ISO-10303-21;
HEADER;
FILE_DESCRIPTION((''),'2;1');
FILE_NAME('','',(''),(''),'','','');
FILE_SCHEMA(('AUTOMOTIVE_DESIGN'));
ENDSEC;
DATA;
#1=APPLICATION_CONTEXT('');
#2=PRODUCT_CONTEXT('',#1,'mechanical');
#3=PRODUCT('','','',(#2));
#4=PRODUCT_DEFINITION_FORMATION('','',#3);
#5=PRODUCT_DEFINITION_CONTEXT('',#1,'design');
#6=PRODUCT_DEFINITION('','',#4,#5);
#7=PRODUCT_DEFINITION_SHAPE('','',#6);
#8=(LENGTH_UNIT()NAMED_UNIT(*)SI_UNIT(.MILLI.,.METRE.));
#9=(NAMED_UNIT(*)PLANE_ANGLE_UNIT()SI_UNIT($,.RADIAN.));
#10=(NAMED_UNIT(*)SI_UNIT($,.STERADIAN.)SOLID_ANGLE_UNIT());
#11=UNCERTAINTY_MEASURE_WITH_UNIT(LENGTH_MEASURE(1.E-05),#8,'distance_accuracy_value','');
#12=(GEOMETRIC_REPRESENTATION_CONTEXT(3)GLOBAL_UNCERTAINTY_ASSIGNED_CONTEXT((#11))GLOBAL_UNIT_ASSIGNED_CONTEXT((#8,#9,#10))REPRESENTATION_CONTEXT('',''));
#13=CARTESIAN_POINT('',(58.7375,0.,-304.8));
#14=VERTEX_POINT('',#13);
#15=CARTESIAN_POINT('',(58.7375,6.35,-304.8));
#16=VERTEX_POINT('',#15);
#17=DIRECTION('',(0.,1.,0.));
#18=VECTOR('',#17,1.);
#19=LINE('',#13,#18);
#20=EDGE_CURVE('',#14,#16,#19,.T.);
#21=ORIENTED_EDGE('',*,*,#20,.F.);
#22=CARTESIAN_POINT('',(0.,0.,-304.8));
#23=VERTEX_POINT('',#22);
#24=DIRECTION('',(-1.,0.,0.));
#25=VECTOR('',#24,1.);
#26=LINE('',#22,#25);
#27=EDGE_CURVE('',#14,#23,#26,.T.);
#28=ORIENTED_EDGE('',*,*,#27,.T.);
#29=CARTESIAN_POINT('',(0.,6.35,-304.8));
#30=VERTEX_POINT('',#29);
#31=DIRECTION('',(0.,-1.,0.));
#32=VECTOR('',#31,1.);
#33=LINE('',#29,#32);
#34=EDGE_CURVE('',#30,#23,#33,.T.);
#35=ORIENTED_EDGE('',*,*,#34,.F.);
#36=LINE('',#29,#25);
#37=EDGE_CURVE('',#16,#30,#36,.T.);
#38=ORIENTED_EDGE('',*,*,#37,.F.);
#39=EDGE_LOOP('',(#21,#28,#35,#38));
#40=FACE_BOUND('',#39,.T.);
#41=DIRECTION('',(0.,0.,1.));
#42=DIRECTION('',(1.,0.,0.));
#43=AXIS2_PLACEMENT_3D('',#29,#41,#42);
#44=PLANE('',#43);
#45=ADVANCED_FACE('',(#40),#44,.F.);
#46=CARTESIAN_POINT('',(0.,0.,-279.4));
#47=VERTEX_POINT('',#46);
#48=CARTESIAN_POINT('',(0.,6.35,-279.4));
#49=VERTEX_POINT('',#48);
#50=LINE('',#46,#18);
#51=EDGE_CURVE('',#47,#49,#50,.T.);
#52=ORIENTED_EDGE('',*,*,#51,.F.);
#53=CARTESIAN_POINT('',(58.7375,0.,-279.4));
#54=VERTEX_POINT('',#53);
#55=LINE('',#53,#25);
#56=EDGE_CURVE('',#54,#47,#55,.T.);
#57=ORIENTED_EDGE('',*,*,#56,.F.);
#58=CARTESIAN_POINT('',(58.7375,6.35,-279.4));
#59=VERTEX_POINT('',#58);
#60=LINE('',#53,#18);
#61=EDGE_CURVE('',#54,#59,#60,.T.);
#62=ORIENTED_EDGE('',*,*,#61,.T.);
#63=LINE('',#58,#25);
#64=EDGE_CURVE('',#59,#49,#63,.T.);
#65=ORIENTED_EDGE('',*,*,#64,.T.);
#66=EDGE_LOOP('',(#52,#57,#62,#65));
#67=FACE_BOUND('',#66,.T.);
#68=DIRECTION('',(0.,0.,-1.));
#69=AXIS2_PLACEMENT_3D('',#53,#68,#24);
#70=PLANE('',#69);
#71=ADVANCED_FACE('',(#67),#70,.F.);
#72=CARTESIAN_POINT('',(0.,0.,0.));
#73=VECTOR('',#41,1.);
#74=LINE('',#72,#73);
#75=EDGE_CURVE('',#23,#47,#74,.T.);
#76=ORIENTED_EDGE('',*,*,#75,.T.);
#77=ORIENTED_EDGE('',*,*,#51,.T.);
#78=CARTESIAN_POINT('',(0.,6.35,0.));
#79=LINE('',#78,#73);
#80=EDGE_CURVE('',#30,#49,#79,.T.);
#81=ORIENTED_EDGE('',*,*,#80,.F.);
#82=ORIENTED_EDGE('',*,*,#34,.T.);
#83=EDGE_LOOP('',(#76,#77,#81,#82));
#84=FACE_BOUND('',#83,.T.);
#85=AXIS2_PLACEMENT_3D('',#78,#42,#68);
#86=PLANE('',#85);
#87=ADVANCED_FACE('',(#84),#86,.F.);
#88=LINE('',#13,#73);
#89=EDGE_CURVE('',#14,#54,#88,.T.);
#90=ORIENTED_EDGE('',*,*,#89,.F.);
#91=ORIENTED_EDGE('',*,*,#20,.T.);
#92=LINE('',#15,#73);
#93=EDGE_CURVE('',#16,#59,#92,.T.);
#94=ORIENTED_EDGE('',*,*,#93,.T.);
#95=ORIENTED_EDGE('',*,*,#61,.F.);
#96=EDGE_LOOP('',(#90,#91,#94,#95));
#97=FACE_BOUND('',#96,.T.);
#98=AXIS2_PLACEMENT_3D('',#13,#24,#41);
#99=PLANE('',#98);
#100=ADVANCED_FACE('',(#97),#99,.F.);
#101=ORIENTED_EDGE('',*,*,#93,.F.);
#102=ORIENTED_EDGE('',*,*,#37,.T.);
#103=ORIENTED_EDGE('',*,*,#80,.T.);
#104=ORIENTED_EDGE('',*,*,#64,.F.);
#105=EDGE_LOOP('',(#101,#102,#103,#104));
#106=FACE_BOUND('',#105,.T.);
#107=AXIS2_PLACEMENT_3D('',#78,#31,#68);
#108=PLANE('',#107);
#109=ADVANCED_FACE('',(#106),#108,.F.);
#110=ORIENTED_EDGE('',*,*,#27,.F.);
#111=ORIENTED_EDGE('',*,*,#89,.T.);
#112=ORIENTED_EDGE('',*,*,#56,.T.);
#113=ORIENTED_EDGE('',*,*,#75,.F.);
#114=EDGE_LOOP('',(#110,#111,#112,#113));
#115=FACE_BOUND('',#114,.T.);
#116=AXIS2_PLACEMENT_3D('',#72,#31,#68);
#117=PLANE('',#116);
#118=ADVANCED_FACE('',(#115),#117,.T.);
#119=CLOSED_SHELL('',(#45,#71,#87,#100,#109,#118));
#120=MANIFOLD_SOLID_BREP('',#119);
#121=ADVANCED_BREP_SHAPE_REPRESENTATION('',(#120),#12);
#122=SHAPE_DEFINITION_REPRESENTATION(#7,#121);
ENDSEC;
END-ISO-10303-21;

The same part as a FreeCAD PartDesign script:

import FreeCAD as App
import Part
import Sketcher
from FreeCAD import Vector
Q = App.Units.Quantity


def add_polygon(sketch, points):
    """Adds a closed chain of lines whose ends are joined by coincident constraints."""
    first, n = sketch.GeometryCount, len(points)
    for a, b in zip(points, points[1:] + points[:1]):
        sketch.addGeometry(Part.LineSegment(App.Vector(*a, 0), App.Vector(*b, 0)), False)
    for i in range(n):
        sketch.addConstraint(Sketcher.Constraint("Coincident", first + i, 2, first + (i + 1) % n, 1))

doc = App.newDocument("Part")
params = doc.addObject("Spreadsheet::Sheet", "Params")
for row, (alias, value) in enumerate([
    ("sketch1_width", "12 in"),
    ("pad1_length", "0.25 in"),
    ("sketch2_width", "12 in"),
    ("sketch2_height", "1 in"),
    ("sketch2_width2", "2.3125 in"),
    ("pocket1_length", "0.25 in"),
], start=1):
    params.set(f"A{row}", alias)
    params.set(f"B{row}", "=" + value)
    params.setAlias(f"B{row}", alias)

body = doc.addObject("PartDesign::Body", "Body")

sketch1 = body.newObject("Sketcher::SketchObject", "Sketch")
sketch1.AttachmentSupport = (doc.getObject("XZ_Plane"), [""])
sketch1.MapMode = "FlatFace"
add_polygon(sketch1, [(0, -305), (0, 0), (305, 0), (305, -305)])
sketch1.addConstraint([
    Sketcher.Constraint("Vertical", 0),
    Sketcher.Constraint("Horizontal", 1),
    Sketcher.Constraint("Vertical", 2),
    Sketcher.Constraint("Horizontal", 3),
    Sketcher.Constraint("Coincident", 0, 2, -1, 1),
    Sketcher.Constraint("Equal", 3, 0),
    Sketcher.Constraint("DistanceX", 1, 1, 1, 2, Q("12 in")),
])
sketch1.setExpression("Constraints[10]", "Params.sketch1_width")
pad1 = body.newObject("PartDesign::Pad", "Pad")
pad1.Profile = sketch1
pad1.setExpression("Length", "Params.pad1_length")
pad1.Reversed = True

sketch2 = body.newObject("Sketcher::SketchObject", "Sketch001")
sketch2.AttachmentSupport = (doc.getObject("XZ_Plane"), [""])
sketch2.MapMode = "FlatFace"
sketch2.AttachmentOffset = App.Placement(Vector(0, 0, -0.25 * 25.4), App.Rotation())
add_polygon(sketch2, [(59, -305), (59, -279), (0, -279), (0, 0), (305, 0), (305, -305)])
sketch2.addConstraint([
    Sketcher.Constraint("Vertical", 0),
    Sketcher.Constraint("Horizontal", 1),
    Sketcher.Constraint("Vertical", 2),
    Sketcher.Constraint("Horizontal", 3),
    Sketcher.Constraint("Vertical", 4),
    Sketcher.Constraint("Horizontal", 5),
    Sketcher.Constraint("Coincident", 2, 2, -1, 1),
    Sketcher.Constraint("Equal", 3, 4),
    Sketcher.Constraint("DistanceX", 3, 1, 3, 2, Q("12 in")),
    Sketcher.Constraint("DistanceY", 0, 1, 0, 2, Q("1 in")),
    Sketcher.Constraint("DistanceX", 1, 2, 1, 1, Q("2.3125 in")),
])
sketch2.setExpression("Constraints[14]", "Params.sketch2_width")
sketch2.setExpression("Constraints[15]", "Params.sketch2_height")
sketch2.setExpression("Constraints[16]", "Params.sketch2_width2")
pocket1 = body.newObject("PartDesign::Pocket", "Pocket")
pocket1.Profile = sketch2
pocket1.setExpression("Length", "Params.pocket1_length")
pocket1.Reversed = True

doc.recompute()
